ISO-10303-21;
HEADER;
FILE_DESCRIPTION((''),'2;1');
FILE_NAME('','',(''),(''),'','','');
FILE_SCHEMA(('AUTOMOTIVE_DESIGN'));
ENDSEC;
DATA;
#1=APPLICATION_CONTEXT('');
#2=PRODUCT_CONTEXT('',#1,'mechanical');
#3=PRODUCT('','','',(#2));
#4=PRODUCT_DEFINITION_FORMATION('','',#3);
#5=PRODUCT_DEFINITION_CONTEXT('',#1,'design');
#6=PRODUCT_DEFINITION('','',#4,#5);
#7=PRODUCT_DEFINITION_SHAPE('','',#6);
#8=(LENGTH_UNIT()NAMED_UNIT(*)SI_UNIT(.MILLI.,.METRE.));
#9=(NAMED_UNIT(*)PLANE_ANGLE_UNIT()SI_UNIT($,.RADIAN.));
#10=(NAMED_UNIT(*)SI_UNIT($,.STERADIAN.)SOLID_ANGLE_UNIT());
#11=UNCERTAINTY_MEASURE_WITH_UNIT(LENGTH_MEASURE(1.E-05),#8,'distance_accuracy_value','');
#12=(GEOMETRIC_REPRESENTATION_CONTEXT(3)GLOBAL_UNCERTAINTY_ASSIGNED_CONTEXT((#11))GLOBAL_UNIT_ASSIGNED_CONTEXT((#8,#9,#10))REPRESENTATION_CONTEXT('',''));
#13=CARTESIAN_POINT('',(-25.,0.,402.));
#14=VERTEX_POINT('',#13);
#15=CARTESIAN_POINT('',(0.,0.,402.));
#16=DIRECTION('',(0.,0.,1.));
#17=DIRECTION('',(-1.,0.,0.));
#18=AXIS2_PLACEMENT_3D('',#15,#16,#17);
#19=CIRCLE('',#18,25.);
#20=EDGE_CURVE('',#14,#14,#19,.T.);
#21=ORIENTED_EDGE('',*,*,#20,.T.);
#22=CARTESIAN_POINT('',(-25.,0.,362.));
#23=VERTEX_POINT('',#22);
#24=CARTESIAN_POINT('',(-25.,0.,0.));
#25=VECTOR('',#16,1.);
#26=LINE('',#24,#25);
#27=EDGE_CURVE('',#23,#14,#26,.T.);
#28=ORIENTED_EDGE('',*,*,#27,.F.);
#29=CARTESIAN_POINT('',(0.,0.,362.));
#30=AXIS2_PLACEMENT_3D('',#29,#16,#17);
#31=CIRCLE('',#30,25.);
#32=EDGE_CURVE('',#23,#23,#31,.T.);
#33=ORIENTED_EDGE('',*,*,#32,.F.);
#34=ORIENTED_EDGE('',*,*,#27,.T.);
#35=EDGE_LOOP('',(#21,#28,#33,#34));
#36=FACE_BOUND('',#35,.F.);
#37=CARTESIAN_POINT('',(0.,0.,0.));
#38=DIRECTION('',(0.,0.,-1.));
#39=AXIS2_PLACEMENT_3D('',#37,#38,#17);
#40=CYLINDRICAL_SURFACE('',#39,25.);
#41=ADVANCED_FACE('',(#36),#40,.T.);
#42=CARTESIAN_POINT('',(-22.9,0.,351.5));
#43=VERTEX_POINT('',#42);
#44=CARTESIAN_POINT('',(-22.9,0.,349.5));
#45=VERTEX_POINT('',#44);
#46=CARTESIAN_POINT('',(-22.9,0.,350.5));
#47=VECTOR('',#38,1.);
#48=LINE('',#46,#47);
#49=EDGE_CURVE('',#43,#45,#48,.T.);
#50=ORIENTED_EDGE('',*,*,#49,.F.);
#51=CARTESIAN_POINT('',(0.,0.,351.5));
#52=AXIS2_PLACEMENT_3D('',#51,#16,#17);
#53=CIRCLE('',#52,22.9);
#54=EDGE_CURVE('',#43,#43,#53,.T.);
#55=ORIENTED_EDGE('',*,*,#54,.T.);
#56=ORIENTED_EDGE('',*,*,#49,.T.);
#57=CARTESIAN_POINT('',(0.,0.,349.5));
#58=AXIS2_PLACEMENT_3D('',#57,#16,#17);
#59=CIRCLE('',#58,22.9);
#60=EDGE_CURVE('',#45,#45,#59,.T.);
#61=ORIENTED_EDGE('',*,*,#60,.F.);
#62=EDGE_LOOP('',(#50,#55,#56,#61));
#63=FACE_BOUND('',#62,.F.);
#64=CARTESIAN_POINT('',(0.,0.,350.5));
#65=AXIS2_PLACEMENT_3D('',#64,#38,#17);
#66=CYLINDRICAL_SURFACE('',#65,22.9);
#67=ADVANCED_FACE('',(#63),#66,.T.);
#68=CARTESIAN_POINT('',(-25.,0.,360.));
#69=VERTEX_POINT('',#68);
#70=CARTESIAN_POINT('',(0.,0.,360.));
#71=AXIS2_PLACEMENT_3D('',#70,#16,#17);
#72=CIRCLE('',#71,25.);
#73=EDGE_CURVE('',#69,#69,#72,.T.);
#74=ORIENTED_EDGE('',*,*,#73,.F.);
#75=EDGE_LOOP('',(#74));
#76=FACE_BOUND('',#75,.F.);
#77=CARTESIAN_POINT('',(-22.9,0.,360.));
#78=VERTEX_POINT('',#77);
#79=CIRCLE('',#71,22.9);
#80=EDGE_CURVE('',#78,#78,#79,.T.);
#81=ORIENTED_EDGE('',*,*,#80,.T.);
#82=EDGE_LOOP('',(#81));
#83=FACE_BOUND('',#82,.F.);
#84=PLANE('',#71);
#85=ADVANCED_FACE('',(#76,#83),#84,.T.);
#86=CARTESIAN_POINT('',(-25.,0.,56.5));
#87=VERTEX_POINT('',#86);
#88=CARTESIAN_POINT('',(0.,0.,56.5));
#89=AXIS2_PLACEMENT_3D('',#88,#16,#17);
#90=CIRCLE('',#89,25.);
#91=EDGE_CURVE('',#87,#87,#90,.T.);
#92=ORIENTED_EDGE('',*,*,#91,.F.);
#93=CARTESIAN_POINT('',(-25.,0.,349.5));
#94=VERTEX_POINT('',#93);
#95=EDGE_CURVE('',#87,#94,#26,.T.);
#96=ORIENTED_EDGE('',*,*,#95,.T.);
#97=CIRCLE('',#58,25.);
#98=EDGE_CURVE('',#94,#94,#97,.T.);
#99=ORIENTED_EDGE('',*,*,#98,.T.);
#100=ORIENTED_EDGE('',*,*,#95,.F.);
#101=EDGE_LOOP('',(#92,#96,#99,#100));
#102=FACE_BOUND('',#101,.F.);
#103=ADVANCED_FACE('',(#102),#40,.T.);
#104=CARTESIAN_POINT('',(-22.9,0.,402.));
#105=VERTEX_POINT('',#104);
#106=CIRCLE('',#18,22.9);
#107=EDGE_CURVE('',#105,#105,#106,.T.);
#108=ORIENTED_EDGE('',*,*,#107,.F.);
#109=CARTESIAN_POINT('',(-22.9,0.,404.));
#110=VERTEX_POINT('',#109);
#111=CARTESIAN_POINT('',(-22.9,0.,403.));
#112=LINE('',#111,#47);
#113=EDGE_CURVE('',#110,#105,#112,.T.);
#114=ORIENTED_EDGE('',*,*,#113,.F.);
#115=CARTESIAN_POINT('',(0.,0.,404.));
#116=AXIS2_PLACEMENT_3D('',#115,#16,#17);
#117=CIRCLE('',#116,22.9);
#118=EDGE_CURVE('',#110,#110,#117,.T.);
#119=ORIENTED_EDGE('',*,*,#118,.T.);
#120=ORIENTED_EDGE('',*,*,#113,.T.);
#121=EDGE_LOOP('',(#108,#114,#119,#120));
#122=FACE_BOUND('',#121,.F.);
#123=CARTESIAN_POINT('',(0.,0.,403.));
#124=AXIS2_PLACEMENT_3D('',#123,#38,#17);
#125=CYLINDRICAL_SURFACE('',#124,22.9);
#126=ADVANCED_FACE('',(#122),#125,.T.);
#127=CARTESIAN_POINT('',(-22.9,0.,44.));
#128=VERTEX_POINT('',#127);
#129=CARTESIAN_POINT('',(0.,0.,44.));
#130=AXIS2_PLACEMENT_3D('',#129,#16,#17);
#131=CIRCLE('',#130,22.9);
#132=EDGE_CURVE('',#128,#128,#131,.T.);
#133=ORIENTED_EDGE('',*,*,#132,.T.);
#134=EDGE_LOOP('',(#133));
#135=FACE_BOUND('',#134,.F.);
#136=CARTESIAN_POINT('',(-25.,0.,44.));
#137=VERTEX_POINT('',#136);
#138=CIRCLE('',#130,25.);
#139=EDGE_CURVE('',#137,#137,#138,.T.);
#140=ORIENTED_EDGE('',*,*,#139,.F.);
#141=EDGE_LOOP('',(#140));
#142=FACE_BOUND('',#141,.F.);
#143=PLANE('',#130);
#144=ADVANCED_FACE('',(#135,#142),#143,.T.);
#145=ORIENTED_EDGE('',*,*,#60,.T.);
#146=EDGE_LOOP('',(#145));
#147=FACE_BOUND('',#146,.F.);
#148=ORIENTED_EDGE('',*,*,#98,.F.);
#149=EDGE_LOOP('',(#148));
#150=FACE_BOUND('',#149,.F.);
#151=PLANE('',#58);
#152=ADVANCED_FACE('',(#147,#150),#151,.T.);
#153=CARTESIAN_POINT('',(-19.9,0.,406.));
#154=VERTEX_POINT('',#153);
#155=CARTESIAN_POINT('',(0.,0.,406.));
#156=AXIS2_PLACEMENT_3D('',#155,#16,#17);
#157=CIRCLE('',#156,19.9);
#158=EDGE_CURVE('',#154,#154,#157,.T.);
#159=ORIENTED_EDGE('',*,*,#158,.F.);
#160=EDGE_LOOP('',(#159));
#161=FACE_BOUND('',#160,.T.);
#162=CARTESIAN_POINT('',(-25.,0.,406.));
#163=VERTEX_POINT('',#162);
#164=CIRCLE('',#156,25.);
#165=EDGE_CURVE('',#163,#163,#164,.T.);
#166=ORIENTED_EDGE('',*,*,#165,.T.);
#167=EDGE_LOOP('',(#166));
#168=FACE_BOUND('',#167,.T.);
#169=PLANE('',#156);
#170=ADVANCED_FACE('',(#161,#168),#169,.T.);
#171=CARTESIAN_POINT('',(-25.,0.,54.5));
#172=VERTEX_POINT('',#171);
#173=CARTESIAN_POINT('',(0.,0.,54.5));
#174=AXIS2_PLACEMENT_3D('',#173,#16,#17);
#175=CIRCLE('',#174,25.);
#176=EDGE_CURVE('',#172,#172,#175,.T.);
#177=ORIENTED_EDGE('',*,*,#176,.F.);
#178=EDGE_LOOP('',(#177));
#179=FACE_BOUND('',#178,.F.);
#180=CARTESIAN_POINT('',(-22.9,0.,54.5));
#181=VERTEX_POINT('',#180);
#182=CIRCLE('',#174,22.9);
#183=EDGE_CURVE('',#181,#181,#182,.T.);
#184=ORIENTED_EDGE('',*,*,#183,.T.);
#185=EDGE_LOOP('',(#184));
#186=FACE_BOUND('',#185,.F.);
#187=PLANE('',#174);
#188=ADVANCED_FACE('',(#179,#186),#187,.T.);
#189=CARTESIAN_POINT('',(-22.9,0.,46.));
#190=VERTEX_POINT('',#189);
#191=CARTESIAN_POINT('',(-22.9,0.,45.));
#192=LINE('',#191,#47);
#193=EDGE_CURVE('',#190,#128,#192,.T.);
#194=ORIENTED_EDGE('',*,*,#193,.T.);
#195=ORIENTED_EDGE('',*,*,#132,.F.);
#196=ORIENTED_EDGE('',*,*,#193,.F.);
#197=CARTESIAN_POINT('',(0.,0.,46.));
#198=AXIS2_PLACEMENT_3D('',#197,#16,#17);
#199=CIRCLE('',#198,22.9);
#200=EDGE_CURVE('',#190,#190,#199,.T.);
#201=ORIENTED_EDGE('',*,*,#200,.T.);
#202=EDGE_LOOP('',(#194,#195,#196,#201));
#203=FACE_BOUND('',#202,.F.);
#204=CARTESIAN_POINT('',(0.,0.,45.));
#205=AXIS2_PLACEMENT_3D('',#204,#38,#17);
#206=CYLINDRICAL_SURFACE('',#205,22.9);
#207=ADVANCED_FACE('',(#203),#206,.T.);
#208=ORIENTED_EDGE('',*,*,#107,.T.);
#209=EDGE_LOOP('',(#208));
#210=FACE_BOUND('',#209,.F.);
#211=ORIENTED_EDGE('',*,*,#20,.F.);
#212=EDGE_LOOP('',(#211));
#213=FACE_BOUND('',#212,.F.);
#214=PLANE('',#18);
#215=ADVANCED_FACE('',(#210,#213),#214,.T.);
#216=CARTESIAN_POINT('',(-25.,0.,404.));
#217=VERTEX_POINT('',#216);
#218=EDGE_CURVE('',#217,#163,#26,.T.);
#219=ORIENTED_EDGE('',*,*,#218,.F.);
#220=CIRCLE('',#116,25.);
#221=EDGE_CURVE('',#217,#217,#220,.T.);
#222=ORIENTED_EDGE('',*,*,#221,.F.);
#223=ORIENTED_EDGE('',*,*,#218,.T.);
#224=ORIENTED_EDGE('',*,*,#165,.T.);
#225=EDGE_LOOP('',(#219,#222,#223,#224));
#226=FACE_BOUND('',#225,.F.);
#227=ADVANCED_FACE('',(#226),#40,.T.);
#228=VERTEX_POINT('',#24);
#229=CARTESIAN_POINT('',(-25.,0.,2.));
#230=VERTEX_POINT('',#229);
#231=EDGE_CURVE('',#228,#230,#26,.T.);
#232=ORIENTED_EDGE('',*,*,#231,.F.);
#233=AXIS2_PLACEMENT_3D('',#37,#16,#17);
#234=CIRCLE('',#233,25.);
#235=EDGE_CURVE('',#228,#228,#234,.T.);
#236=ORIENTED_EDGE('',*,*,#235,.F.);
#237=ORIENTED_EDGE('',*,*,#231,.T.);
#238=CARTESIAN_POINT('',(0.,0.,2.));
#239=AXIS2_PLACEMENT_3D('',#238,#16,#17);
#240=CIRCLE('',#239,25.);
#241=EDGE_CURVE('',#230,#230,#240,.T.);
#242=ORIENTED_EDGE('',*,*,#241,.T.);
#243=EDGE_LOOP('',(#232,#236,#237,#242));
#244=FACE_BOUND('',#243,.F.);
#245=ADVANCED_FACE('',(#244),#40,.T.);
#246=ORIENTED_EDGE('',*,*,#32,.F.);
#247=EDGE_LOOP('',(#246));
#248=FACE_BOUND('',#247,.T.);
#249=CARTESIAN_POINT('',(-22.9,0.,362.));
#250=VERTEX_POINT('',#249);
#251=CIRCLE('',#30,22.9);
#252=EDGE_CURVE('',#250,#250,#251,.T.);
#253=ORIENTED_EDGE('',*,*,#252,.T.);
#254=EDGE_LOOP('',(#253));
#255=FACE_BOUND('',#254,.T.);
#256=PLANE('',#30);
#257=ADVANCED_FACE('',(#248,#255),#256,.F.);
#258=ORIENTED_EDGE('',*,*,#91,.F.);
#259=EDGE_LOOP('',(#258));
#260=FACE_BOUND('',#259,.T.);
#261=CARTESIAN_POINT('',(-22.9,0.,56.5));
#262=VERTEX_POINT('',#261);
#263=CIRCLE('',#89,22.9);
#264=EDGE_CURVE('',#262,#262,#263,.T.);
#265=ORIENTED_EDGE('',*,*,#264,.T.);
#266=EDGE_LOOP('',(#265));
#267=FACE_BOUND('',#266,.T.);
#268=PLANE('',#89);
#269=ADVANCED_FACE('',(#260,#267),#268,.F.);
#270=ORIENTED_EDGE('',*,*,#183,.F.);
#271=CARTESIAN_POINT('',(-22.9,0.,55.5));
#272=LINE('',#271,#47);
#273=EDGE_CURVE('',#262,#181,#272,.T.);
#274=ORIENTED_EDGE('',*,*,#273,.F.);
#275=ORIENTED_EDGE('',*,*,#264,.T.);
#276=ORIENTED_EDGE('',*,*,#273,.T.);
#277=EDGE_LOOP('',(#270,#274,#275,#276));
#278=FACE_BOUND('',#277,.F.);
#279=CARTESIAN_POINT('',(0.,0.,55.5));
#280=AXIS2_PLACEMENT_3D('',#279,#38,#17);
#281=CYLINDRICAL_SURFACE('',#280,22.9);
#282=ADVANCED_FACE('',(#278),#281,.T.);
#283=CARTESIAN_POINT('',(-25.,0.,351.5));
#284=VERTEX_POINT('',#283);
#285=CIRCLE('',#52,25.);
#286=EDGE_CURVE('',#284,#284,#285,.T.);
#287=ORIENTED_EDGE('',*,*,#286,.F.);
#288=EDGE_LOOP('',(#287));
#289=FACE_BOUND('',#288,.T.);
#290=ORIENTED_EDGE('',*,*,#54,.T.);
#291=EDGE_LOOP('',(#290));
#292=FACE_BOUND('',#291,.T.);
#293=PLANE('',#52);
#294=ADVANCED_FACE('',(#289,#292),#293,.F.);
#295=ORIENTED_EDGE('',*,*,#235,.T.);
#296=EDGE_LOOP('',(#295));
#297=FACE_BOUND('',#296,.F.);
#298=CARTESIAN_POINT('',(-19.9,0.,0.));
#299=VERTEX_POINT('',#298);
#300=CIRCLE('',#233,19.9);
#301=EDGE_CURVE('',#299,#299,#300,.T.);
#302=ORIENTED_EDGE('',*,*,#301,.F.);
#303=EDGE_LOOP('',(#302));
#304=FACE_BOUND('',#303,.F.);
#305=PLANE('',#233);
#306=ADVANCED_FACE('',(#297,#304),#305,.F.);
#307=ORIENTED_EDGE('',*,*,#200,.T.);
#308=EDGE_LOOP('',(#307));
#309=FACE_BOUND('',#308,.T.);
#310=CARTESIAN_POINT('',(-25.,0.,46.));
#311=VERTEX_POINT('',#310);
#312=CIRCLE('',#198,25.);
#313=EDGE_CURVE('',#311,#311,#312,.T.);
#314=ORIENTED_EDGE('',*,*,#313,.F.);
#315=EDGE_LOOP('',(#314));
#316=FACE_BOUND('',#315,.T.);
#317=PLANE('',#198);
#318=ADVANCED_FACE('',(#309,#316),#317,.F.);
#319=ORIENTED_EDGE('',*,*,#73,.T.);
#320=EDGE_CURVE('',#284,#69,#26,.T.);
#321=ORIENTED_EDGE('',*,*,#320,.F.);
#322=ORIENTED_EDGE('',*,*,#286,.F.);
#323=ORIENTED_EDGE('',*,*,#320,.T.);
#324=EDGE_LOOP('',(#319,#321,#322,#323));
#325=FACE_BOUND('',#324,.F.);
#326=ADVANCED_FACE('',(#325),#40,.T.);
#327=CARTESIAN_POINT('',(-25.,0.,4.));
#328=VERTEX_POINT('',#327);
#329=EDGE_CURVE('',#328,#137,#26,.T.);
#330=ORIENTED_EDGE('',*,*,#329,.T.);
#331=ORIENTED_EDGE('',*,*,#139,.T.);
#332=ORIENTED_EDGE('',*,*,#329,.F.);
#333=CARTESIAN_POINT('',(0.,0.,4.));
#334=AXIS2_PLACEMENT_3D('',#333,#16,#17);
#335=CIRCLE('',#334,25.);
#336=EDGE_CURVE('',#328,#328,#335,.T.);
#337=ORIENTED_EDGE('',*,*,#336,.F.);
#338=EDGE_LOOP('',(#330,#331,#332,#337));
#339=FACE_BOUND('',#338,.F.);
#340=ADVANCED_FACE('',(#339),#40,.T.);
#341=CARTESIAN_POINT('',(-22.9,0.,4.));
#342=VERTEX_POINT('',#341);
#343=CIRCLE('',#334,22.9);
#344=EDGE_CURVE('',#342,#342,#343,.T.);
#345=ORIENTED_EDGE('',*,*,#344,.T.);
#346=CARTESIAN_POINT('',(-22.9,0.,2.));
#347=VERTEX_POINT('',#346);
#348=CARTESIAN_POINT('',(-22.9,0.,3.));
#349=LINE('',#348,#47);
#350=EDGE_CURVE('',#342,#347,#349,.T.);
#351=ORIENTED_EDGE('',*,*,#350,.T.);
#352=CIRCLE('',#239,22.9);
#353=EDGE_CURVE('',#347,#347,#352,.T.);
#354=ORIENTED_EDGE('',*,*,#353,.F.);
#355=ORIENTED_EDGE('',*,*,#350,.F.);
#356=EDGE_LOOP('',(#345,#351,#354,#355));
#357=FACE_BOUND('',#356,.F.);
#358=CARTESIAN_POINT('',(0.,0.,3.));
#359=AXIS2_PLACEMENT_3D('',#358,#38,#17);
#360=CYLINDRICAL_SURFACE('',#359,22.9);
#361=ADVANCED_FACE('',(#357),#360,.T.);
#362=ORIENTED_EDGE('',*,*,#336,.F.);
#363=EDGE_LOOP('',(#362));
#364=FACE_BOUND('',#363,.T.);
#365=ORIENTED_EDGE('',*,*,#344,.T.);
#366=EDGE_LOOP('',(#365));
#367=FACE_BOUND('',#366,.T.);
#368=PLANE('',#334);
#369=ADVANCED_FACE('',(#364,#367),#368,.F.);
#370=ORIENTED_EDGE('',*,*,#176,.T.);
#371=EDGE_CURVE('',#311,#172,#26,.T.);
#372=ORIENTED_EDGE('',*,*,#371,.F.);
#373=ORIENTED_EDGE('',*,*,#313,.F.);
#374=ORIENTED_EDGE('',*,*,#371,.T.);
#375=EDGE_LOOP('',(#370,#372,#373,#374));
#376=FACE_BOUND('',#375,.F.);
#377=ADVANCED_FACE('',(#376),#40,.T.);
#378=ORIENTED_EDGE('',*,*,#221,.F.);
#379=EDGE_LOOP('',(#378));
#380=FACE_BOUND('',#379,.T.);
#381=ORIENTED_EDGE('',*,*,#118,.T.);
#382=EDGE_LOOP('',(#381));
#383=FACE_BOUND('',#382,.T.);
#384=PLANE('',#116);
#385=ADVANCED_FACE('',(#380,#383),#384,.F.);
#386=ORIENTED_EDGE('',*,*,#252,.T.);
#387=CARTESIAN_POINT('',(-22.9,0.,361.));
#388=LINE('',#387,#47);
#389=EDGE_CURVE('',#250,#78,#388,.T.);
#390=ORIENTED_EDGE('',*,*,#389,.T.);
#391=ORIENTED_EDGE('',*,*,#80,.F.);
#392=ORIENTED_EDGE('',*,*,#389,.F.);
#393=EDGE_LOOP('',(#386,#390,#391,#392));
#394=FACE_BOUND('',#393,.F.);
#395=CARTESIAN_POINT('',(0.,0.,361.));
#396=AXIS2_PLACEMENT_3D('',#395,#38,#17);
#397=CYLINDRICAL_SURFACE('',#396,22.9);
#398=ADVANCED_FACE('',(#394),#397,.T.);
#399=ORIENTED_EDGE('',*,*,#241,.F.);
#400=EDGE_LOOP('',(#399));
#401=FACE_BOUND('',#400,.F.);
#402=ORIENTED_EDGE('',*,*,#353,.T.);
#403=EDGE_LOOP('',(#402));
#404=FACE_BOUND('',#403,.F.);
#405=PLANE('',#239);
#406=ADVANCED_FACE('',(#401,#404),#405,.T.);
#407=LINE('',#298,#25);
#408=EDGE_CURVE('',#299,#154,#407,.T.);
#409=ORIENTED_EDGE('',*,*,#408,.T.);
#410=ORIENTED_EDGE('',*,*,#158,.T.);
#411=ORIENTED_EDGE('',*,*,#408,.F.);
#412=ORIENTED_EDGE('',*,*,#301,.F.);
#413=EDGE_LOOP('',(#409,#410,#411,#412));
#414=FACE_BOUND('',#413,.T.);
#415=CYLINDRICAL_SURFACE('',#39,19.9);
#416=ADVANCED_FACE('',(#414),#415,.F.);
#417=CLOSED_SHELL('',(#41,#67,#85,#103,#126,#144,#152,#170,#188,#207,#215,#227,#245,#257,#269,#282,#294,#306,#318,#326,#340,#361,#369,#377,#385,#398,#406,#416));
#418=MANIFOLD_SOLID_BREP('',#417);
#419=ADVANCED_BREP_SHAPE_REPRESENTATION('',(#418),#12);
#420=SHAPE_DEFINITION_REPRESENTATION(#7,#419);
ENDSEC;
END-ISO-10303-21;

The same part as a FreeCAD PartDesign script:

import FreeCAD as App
import Part
import Sketcher
Q = App.Units.Quantity


def add_polygon(sketch, points):
    """Adds a closed chain of lines whose ends are joined by coincident constraints."""
    first, n = sketch.GeometryCount, len(points)
    for a, b in zip(points, points[1:] + points[:1]):
        sketch.addGeometry(Part.LineSegment(App.Vector(*a, 0), App.Vector(*b, 0)), False)
    for i in range(n):
        sketch.addConstraint(Sketcher.Constraint("Coincident", first + i, 2, first + (i + 1) % n, 1))

doc = App.newDocument("Part")
body = doc.addObject("PartDesign::Body", "Body")

# Sketch on XY plane
sketch1 = body.newObject("Sketcher::SketchObject", "Sketch")
sketch1.AttachmentSupport = (doc.getObject("XY_Plane"), [""])
sketch1.MapMode = "FlatFace"
sketch1.addGeometry([
    Part.Circle(App.Vector(0, 0, 0), App.Vector(0, 0, 1), 25),
    Part.Circle(App.Vector(0, 0, 0), App.Vector(0, 0, 1), 20),
], False)
sketch1.addConstraint([
    Sketcher.Constraint("Coincident", 0, 3, -1, 1),
    Sketcher.Constraint("Coincident", 1, 3, -1, 1),
    Sketcher.Constraint("Diameter", 0, Q("50 mm")),
    Sketcher.Constraint("Diameter", 1, Q("39.8 mm")),
])
pad1 = body.newObject("PartDesign::Pad", "Pad")
pad1.Profile = sketch1
pad1.Length = 406

# Sketch on YZ plane
sketch2 = body.newObject("Sketcher::SketchObject", "Sketch001")
sketch2.AttachmentSupport = (doc.getObject("YZ_Plane"), [""])
sketch2.MapMode = "FlatFace"
add_polygon(sketch2, [(25, 404), (22.9, 404), (22.9, 402), (25, 402)])  # lines 0-3
add_polygon(sketch2, [(25, 362), (22.9, 362), (22.9, 360), (25, 360)])  # lines 4-7
add_polygon(sketch2, [(25, 56.5), (22.9, 56.5), (22.9, 54.5), (25, 54.5)])  # lines 8-11
add_polygon(sketch2, [(25, 351.5), (22.9, 351.5), (22.9, 349.5), (25, 349.5)])  # lines 12-15
add_polygon(sketch2, [(25, 46), (22.9, 46), (22.9, 44), (25, 44)])  # lines 16-19
add_polygon(sketch2, [(25, 4), (22.9, 4), (22.9, 2), (25, 2)])  # lines 20-23
sketch2.addConstraint([
    Sketcher.Constraint("Horizontal", 0),
    Sketcher.Constraint("Vertical", 1),
    Sketcher.Constraint("Horizontal", 2),
    Sketcher.Constraint("Vertical", 3),
    Sketcher.Constraint("Horizontal", 4),
    Sketcher.Constraint("Vertical", 5),
    Sketcher.Constraint("Horizontal", 6),
    Sketcher.Constraint("Vertical", 7),
    Sketcher.Constraint("Horizontal", 8),
    Sketcher.Constraint("Vertical", 9),
    Sketcher.Constraint("Horizontal", 10),
    Sketcher.Constraint("Vertical", 11),
    Sketcher.Constraint("Horizontal", 12),
    Sketcher.Constraint("Vertical", 13),
    Sketcher.Constraint("Horizontal", 14),
    Sketcher.Constraint("Vertical", 15),
    Sketcher.Constraint("Horizontal", 16),
    Sketcher.Constraint("Vertical", 17),
    Sketcher.Constraint("Horizontal", 18),
    Sketcher.Constraint("Vertical", 19),
    Sketcher.Constraint("Horizontal", 20),
    Sketcher.Constraint("Vertical", 21),
    Sketcher.Constraint("Horizontal", 22),
    Sketcher.Constraint("Vertical", 23),
    Sketcher.Constraint("Vertical", 1, 2, 4, 2),
    Sketcher.Constraint("Vertical", 3, 2, 6, 2),
    Sketcher.Constraint("Vertical", 5, 2, 8, 2),
    Sketcher.Constraint("Vertical", 7, 2, 10, 2),
    Sketcher.Constraint("Vertical", 9, 2, 12, 2),
    Sketcher.Constraint("Vertical", 11, 2, 14, 2),
    Sketcher.Constraint("Vertical", 13, 2, 16, 2),
    Sketcher.Constraint("Vertical", 15, 2, 18, 2),
    Sketcher.Constraint("Vertical", 17, 2, 20, 2),
    Sketcher.Constraint("Vertical", 19, 2, 22, 2),
    Sketcher.Constraint("Equal", 3, 5),
    Sketcher.Constraint("Equal", 7, 9),
    Sketcher.Constraint("Equal", 11, 13),
    Sketcher.Constraint("Equal", 15, 17),
    Sketcher.Constraint("Equal", 19, 21),
    Sketcher.Constraint("DistanceY", 1, 2, 1, 1, Q("2 mm")),
    Sketcher.Constraint("DistanceX", 0, 2, 0, 1, Q("2.1 mm")),
    Sketcher.Constraint("DistanceY", -1, 1, 0, 2, Q("404 mm")),
    Sketcher.Constraint("DistanceX", -1, 1, 2, 2, Q("25 mm")),
    Sketcher.Constraint("DistanceY", -1, 1, 4, 2, Q("362 mm")),
    Sketcher.Constraint("DistanceY", -1, 1, 16, 2, Q("46 mm")),
    Sketcher.Constraint("DistanceY", -1, 1, 20, 2, Q("4 mm")),
    Sketcher.Constraint("DistanceY", -1, 1, 8, 2, Q("56.5 mm")),
    Sketcher.Constraint("DistanceY", -1, 1, 12, 2, Q("351.5 mm")),
])
groove = body.newObject("PartDesign::Groove", "Groove")
groove.Profile = sketch2
groove.ReferenceAxis = (sketch2, ["V_Axis"])
groove.Angle = 360

doc.recompute()
